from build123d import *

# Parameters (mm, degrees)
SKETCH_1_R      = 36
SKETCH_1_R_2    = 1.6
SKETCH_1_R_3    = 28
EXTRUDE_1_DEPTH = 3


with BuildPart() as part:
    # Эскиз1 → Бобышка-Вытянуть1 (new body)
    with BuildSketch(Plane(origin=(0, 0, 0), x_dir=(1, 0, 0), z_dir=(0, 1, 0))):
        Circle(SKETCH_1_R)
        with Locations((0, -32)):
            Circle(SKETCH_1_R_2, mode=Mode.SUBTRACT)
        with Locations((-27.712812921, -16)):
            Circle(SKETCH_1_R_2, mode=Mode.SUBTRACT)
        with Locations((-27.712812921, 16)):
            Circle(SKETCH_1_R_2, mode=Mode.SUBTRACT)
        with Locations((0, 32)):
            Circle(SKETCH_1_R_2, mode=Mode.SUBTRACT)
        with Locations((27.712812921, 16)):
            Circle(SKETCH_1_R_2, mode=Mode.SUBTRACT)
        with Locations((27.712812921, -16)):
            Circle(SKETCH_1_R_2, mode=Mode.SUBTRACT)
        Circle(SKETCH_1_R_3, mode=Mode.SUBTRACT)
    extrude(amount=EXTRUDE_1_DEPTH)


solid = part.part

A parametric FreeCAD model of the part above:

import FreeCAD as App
import Part
import Sketcher

V = App.Vector

doc = App.newDocument("Part")
body = doc.addObject("PartDesign::Body", "Body")

# Sketch on XZ plane
sketch1 = body.newObject("Sketcher::SketchObject", "Sketch")
sketch1.AttachmentSupport = (doc.getObject("XZ_Plane"), [""])
sketch1.MapMode = "FlatFace"
sketch1.addGeometry(Part.Circle(V(0, 0, 0), V(0, 0, 1), 36), False)
sketch1.addGeometry(Part.Circle(V(-27.7, 16, 0), V(0, 0, 1), 1.6), False)
sketch1.addGeometry(Part.Circle(V(0, 32, 0), V(0, 0, 1), 1.6), False)
sketch1.addGeometry(Part.Circle(V(27.7, 16, 0), V(0, 0, 1), 1.6), False)
sketch1.addGeometry(Part.Circle(V(-27.7, -16, 0), V(0, 0, 1), 1.6), False)
sketch1.addGeometry(Part.Circle(V(0, 0, 0), V(0, 0, 1), 28), False)
sketch1.addGeometry(Part.Circle(V(27.7, -16, 0), V(0, 0, 1), 1.6), False)
sketch1.addGeometry(Part.Circle(V(0, -32, 0), V(0, 0, 1), 1.6), False)
sketch1.addConstraint(Sketcher.Constraint("Coincident", 0, 3, -1, 1))
sketch1.addConstraint(Sketcher.Constraint("Coincident", 5, 3, -1, 1))
sketch1.addConstraint(Sketcher.Constraint("Equal", 1, 2))
sketch1.addConstraint(Sketcher.Constraint("Equal", 2, 3))
sketch1.addConstraint(Sketcher.Constraint("Equal", 3, 4))
sketch1.addConstraint(Sketcher.Constraint("Equal", 4, 6))
sketch1.addConstraint(Sketcher.Constraint("Equal", 6, 7))
sketch1.addConstraint(Sketcher.Constraint("Symmetric", 3, 3, 4, 3, -1, 1))
sketch1.addConstraint(Sketcher.Constraint("Symmetric", 1, 3, 6, 3, -1, 1))
sketch1.addConstraint(Sketcher.Constraint("Symmetric", 2, 3, 7, 3, -1, 1))
sketch1.addConstraint(Sketcher.Constraint("Symmetric", 1, 3, 3, 3, -2))
sketch1.addConstraint(Sketcher.Constraint("PointOnObject", 2, 3, -2))
sketch1.addConstraint(Sketcher.Constraint("Diameter", 0, 72.0))
sketch1.addConstraint(Sketcher.Constraint("Diameter", 5, 56.0))
sketch1.addConstraint(Sketcher.Constraint("Diameter", 1, 3.2))
sketch1.addConstraint(Sketcher.Constraint("DistanceY", -1, 1, 1, 3, 16.0))
sketch1.addConstraint(Sketcher.Constraint("DistanceY", -1, 1, 2, 3, 32.0))
sketch1.addConstraint(Sketcher.Constraint("DistanceX", 1, 3, -1, 1, 27.712813))
pad1 = body.newObject("PartDesign::Pad", "Pad")
pad1.Profile = sketch1
pad1.Length = 3
pad1.Reversed = True

doc.recompute()
